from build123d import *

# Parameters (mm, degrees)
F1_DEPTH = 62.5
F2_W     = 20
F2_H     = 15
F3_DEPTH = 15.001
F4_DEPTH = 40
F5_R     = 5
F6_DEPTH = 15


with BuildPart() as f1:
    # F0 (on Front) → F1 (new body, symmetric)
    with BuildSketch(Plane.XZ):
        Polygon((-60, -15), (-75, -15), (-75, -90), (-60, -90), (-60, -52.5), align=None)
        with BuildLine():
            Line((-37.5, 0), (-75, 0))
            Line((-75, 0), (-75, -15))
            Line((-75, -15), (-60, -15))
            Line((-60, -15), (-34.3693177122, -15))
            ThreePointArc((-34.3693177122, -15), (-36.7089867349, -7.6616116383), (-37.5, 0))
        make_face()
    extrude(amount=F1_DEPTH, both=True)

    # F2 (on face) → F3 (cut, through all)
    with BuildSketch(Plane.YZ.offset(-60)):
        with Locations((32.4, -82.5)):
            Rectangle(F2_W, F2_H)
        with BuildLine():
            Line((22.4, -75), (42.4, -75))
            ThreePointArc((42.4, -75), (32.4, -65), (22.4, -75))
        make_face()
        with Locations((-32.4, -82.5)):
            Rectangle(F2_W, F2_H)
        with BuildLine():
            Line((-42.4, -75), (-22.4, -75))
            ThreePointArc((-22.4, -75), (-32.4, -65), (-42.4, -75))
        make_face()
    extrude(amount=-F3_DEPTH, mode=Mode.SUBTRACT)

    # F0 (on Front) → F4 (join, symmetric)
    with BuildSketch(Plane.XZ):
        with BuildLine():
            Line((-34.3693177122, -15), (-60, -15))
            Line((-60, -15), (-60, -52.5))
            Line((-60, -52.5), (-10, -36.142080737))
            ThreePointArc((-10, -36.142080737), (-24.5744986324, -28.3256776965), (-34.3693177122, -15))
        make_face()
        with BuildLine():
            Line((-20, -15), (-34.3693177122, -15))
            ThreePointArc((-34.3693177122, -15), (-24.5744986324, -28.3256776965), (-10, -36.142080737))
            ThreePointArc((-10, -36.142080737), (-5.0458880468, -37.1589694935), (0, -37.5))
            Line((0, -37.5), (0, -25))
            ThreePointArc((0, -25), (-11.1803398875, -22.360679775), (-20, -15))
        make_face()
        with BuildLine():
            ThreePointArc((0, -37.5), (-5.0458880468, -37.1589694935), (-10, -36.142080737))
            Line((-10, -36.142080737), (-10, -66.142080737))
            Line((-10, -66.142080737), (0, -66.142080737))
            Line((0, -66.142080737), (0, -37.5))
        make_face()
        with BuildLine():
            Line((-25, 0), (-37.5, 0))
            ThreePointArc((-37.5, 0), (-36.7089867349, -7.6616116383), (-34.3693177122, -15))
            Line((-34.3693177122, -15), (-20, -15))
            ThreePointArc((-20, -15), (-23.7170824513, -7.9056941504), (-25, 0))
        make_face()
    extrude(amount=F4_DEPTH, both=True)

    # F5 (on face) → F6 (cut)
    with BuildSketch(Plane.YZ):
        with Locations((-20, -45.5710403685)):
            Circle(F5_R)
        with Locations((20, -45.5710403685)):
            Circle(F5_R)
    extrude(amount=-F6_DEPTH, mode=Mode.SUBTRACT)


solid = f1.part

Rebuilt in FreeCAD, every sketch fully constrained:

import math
import FreeCAD as App
import Part
import Sketcher
Q = App.Units.Quantity

doc = App.newDocument("Part")
params = doc.addObject("Spreadsheet::Sheet", "Params")
for row, (alias, value) in enumerate([
    ("sketch1_radius", "37.5 mm"),
    ("sketch1_width", "15 mm"),
    ("sketch1_height", "75 mm"),
    ("sketch1_height2", "90 mm"),
    ("sketch1_width2", "37.5 mm"),
    ("pad1_length", "125 mm"),
    ("sketch2_radius", "10 mm"),
    ("sketch2_height", "15 mm"),
    ("sketch3_radius", "25 mm"),
    ("sketch3_radius2", "37.5 mm"),
    ("sketch3_width", "10 mm"),
    ("sketch3_height", "30 mm"),
    ("sketch3_height2", "37.5 mm"),
    ("pad2_length", "80 mm"),
    ("sketch4_diameter", "10 mm"),
    ("pocket2_length", "15 mm"),
], start=1):
    params.set(f"A{row}", alias)
    params.set(f"B{row}", "=" + value)
    params.setAlias(f"B{row}", alias)

body = doc.addObject("PartDesign::Body", "Body")

sketch1 = body.newObject("Sketcher::SketchObject", "Sketch")
sketch1.AttachmentSupport = (doc.getObject("XZ_Plane"), [""])
sketch1.MapMode = "FlatFace"
sketch1.addGeometry([
    Part.LineSegment(App.Vector(-75, -90, 0), App.Vector(-60, -90, 0)),
    Part.LineSegment(App.Vector(-60, -90, 0), App.Vector(-60, -15, 0)),
    Part.LineSegment(App.Vector(-60, -15, 0), App.Vector(-34, -15, 0)),
    Part.ArcOfCircle(Part.Circle(App.Vector(0, 0, 0), App.Vector(0, 0, 1), 38), math.radians(180), math.radians(204)),
    Part.LineSegment(App.Vector(-38, 0, 0), App.Vector(-75, 0, 0)),
    Part.LineSegment(App.Vector(-75, 0, 0), App.Vector(-75, -90, 0)),
], False)
sketch1.addConstraint([
    Sketcher.Constraint("Coincident", 0, 2, 1, 1),
    Sketcher.Constraint("Coincident", 1, 2, 2, 1),
    Sketcher.Constraint("Coincident", 2, 2, 3, 2),
    Sketcher.Constraint("Coincident", 3, 1, 4, 1),
    Sketcher.Constraint("Coincident", 4, 2, 5, 1),
    Sketcher.Constraint("Coincident", 5, 2, 0, 1),
    Sketcher.Constraint("Horizontal", 0),
    Sketcher.Constraint("Vertical", 1),
    Sketcher.Constraint("Horizontal", 2),
    Sketcher.Constraint("Horizontal", 4),
    Sketcher.Constraint("Vertical", 5),
    Sketcher.Constraint("Coincident", 3, 3, -1, 1),
    Sketcher.Constraint("PointOnObject", 3, 1, -1),
    Sketcher.Constraint("Radius", 3, Q("37.5 mm")),
    Sketcher.Constraint("DistanceX", 0, 1, 0, 2, Q("15 mm")),
    Sketcher.Constraint("DistanceY", 1, 1, 1, 2, Q("75 mm")),
    Sketcher.Constraint("DistanceY", 5, 2, 5, 1, Q("90 mm")),
    Sketcher.Constraint("DistanceX", 4, 2, 4, 1, Q("37.5 mm")),
])
sketch1.setExpression("Constraints[13]", "Params.sketch1_radius")
sketch1.setExpression("Constraints[14]", "Params.sketch1_width")
sketch1.setExpression("Constraints[15]", "Params.sketch1_height")
sketch1.setExpression("Constraints[16]", "Params.sketch1_height2")
sketch1.setExpression("Constraints[17]", "Params.sketch1_width2")
pad1 = body.newObject("PartDesign::Pad", "Pad")
pad1.Profile = sketch1
pad1.setExpression("Length", "Params.pad1_length")
pad1.Midplane = True

sketch2 = body.newObject("Sketcher::SketchObject", "Sketch001")
sketch2.AttachmentSupport = (doc.getObject("YZ_Plane"), [""])
sketch2.MapMode = "FlatFace"
sketch2.AttachmentOffset = App.Placement(App.Vector(0, 0, -60), App.Rotation())
sketch2.addGeometry([
    Part.LineSegment(App.Vector(22, -75, 0), App.Vector(22, -90, 0)),
    Part.LineSegment(App.Vector(22, -90, 0), App.Vector(42, -90, 0)),
    Part.LineSegment(App.Vector(42, -90, 0), App.Vector(42, -75, 0)),
    Part.ArcOfCircle(Part.Circle(App.Vector(32, -75, 0), App.Vector(0, 0, 1), 10), math.radians(0), math.radians(180)),
    Part.LineSegment(App.Vector(-42, -75, 0), App.Vector(-42, -90, 0)),
    Part.LineSegment(App.Vector(-42, -90, 0), App.Vector(-22, -90, 0)),
    Part.LineSegment(App.Vector(-22, -90, 0), App.Vector(-22, -75, 0)),
    Part.ArcOfCircle(Part.Circle(App.Vector(-32, -75, 0), App.Vector(0, 0, 1), 10), math.radians(0), math.radians(180)),
], False)
sketch2.addConstraint([
    Sketcher.Constraint("Coincident", 0, 2, 1, 1),
    Sketcher.Constraint("Coincident", 1, 2, 2, 1),
    Sketcher.Constraint("Tangent", 2, 2, 3, 1),
    Sketcher.Constraint("Tangent", 3, 2, 0, 1),
    Sketcher.Constraint("Coincident", 4, 2, 5, 1),
    Sketcher.Constraint("Coincident", 5, 2, 6, 1),
    Sketcher.Constraint("Tangent", 6, 2, 7, 1),
    Sketcher.Constraint("Tangent", 7, 2, 4, 1),
    Sketcher.Constraint("Vertical", 0),
    Sketcher.Constraint("Horizontal", 1),
    Sketcher.Constraint("Vertical", 2),
    Sketcher.Constraint("Vertical", 4),
    Sketcher.Constraint("Horizontal", 5),
    Sketcher.Constraint("Vertical", 6),
    Sketcher.Constraint("Equal", 3, 7),
    Sketcher.Constraint("Symmetric", 3, 3, 7, 3, -2),
    Sketcher.Constraint("Horizontal", 1, 2, 4, 2),
    Sketcher.Constraint("Radius", 3, Q("10 mm")),
    Sketcher.Constraint("DistanceY", 0, 2, 0, 1, Q("15 mm")),
    Sketcher.Constraint("DistanceY", 3, 3, -1, 1, Q("75 mm")),
    Sketcher.Constraint("DistanceX", -1, 1, 3, 3, Q("32.4 mm")),
])
sketch2.setExpression("Constraints[17]", "Params.sketch2_radius")
sketch2.setExpression("Constraints[18]", "Params.sketch2_height")
pocket1 = body.newObject("PartDesign::Pocket", "Pocket")
pocket1.Profile = sketch2
pocket1.Type = "ThroughAll"

sketch3 = body.newObject("Sketcher::SketchObject", "Sketch002")
sketch3.AttachmentSupport = (doc.getObject("XZ_Plane"), [""])
sketch3.MapMode = "FlatFace"
sketch3.addGeometry([
    Part.LineSegment(App.Vector(-60, -15, 0), App.Vector(-60, -52, 0)),
    Part.LineSegment(App.Vector(-60, -52, 0), App.Vector(-10, -36, 0)),
    Part.LineSegment(App.Vector(-10, -36, 0), App.Vector(-10, -66, 0)),
    Part.LineSegment(App.Vector(-10, -66, 0), App.Vector(0, -66, 0)),
    Part.LineSegment(App.Vector(0, -66, 0), App.Vector(0, -25, 0)),
    Part.ArcOfCircle(Part.Circle(App.Vector(0, 0, 0), App.Vector(0, 0, 1), 25), math.radians(-143), math.radians(-90)),
    Part.ArcOfCircle(Part.Circle(App.Vector(0, 0, 0), App.Vector(0, 0, 1), 25), math.radians(180), math.radians(217)),
    Part.LineSegment(App.Vector(-25, 0, 0), App.Vector(-38, 0, 0)),
    Part.ArcOfCircle(Part.Circle(App.Vector(0, 0, 0), App.Vector(0, 0, 1), 38), math.radians(180), math.radians(204)),
    Part.LineSegment(App.Vector(-34, -15, 0), App.Vector(-60, -15, 0)),
], False)
sketch3.addConstraint([
    Sketcher.Constraint("Coincident", 0, 2, 1, 1),
    Sketcher.Constraint("Coincident", 1, 2, 2, 1),
    Sketcher.Constraint("Coincident", 2, 2, 3, 1),
    Sketcher.Constraint("Coincident", 3, 2, 4, 1),
    Sketcher.Constraint("Coincident", 4, 2, 5, 2),
    Sketcher.Constraint("Tangent", 5, 1, 6, 2),
    Sketcher.Constraint("Coincident", 6, 1, 7, 1),
    Sketcher.Constraint("Coincident", 7, 2, 8, 1),
    Sketcher.Constraint("Coincident", 8, 2, 9, 1),
    Sketcher.Constraint("Coincident", 9, 2, 0, 1),
    Sketcher.Constraint("Vertical", 0),
    Sketcher.Constraint("Vertical", 2),
    Sketcher.Constraint("Horizontal", 3),
    Sketcher.Constraint("Vertical", 4),
    Sketcher.Constraint("Horizontal", 7),
    Sketcher.Constraint("Horizontal", 9),
    Sketcher.Constraint("Coincident", 5, 3, -1, 1),
    Sketcher.Constraint("Coincident", 8, 3, -1, 1),
    Sketcher.Constraint("Equal", 5, 6),
    Sketcher.Constraint("PointOnObject", 3, 2, -2),
    Sketcher.Constraint("PointOnObject", 6, 1, -1),
    Sketcher.Constraint("Horizontal", 5, 1, 8, 2),
    Sketcher.Constraint("Radius", 5, Q("25 mm")),
    Sketcher.Constraint("Radius", 8, Q("37.5 mm")),
    Sketcher.Constraint("DistanceX", 3, 1, 3, 2, Q("10 mm")),
    Sketcher.Constraint("DistanceY", 2, 2, 2, 1, Q("30 mm")),
    Sketcher.Constraint("DistanceY", 0, 2, 0, 1, Q("37.5 mm")),
    Sketcher.Constraint("DistanceX", 0, 2, -1, 1, Q("60 mm")),
    Sketcher.Constraint("DistanceX", 5, 1, -1, 1, Q("20 mm")),
    Sketcher.Constraint("DistanceY", 4, 1, 4, 2, Q("41.142081 mm")),
])
sketch3.setExpression("Constraints[22]", "Params.sketch3_radius")
sketch3.setExpression("Constraints[23]", "Params.sketch3_radius2")
sketch3.setExpression("Constraints[24]", "Params.sketch3_width")
sketch3.setExpression("Constraints[25]", "Params.sketch3_height")
sketch3.setExpression("Constraints[26]", "Params.sketch3_height2")
pad2 = body.newObject("PartDesign::Pad", "Pad001")
pad2.Profile = sketch3
pad2.setExpression("Length", "Params.pad2_length")
pad2.Midplane = True

sketch4 = body.newObject("Sketcher::SketchObject", "Sketch003")
sketch4.AttachmentSupport = (doc.getObject("YZ_Plane"), [""])
sketch4.MapMode = "FlatFace"
sketch4.addGeometry([
    Part.Circle(App.Vector(-20, -46, 0), App.Vector(0, 0, 1), 5),
    Part.Circle(App.Vector(20, -46, 0), App.Vector(0, 0, 1), 5),
], False)
sketch4.addConstraint([
    Sketcher.Constraint("Equal", 0, 1),
    Sketcher.Constraint("Symmetric", 0, 3, 1, 3, -2),
    Sketcher.Constraint("Diameter", 0, Q("10 mm")),
    Sketcher.Constraint("DistanceX", 0, 3, -1, 1, Q("20 mm")),
    Sketcher.Constraint("DistanceY", 0, 3, -1, 1, Q("45.57104 mm")),
])
sketch4.setExpression("Constraints[2]", "Params.sketch4_diameter")
pocket2 = body.newObject("PartDesign::Pocket", "Pocket001")
pocket2.Profile = sketch4
pocket2.setExpression("Length", "Params.pocket2_length")

doc.recompute()
